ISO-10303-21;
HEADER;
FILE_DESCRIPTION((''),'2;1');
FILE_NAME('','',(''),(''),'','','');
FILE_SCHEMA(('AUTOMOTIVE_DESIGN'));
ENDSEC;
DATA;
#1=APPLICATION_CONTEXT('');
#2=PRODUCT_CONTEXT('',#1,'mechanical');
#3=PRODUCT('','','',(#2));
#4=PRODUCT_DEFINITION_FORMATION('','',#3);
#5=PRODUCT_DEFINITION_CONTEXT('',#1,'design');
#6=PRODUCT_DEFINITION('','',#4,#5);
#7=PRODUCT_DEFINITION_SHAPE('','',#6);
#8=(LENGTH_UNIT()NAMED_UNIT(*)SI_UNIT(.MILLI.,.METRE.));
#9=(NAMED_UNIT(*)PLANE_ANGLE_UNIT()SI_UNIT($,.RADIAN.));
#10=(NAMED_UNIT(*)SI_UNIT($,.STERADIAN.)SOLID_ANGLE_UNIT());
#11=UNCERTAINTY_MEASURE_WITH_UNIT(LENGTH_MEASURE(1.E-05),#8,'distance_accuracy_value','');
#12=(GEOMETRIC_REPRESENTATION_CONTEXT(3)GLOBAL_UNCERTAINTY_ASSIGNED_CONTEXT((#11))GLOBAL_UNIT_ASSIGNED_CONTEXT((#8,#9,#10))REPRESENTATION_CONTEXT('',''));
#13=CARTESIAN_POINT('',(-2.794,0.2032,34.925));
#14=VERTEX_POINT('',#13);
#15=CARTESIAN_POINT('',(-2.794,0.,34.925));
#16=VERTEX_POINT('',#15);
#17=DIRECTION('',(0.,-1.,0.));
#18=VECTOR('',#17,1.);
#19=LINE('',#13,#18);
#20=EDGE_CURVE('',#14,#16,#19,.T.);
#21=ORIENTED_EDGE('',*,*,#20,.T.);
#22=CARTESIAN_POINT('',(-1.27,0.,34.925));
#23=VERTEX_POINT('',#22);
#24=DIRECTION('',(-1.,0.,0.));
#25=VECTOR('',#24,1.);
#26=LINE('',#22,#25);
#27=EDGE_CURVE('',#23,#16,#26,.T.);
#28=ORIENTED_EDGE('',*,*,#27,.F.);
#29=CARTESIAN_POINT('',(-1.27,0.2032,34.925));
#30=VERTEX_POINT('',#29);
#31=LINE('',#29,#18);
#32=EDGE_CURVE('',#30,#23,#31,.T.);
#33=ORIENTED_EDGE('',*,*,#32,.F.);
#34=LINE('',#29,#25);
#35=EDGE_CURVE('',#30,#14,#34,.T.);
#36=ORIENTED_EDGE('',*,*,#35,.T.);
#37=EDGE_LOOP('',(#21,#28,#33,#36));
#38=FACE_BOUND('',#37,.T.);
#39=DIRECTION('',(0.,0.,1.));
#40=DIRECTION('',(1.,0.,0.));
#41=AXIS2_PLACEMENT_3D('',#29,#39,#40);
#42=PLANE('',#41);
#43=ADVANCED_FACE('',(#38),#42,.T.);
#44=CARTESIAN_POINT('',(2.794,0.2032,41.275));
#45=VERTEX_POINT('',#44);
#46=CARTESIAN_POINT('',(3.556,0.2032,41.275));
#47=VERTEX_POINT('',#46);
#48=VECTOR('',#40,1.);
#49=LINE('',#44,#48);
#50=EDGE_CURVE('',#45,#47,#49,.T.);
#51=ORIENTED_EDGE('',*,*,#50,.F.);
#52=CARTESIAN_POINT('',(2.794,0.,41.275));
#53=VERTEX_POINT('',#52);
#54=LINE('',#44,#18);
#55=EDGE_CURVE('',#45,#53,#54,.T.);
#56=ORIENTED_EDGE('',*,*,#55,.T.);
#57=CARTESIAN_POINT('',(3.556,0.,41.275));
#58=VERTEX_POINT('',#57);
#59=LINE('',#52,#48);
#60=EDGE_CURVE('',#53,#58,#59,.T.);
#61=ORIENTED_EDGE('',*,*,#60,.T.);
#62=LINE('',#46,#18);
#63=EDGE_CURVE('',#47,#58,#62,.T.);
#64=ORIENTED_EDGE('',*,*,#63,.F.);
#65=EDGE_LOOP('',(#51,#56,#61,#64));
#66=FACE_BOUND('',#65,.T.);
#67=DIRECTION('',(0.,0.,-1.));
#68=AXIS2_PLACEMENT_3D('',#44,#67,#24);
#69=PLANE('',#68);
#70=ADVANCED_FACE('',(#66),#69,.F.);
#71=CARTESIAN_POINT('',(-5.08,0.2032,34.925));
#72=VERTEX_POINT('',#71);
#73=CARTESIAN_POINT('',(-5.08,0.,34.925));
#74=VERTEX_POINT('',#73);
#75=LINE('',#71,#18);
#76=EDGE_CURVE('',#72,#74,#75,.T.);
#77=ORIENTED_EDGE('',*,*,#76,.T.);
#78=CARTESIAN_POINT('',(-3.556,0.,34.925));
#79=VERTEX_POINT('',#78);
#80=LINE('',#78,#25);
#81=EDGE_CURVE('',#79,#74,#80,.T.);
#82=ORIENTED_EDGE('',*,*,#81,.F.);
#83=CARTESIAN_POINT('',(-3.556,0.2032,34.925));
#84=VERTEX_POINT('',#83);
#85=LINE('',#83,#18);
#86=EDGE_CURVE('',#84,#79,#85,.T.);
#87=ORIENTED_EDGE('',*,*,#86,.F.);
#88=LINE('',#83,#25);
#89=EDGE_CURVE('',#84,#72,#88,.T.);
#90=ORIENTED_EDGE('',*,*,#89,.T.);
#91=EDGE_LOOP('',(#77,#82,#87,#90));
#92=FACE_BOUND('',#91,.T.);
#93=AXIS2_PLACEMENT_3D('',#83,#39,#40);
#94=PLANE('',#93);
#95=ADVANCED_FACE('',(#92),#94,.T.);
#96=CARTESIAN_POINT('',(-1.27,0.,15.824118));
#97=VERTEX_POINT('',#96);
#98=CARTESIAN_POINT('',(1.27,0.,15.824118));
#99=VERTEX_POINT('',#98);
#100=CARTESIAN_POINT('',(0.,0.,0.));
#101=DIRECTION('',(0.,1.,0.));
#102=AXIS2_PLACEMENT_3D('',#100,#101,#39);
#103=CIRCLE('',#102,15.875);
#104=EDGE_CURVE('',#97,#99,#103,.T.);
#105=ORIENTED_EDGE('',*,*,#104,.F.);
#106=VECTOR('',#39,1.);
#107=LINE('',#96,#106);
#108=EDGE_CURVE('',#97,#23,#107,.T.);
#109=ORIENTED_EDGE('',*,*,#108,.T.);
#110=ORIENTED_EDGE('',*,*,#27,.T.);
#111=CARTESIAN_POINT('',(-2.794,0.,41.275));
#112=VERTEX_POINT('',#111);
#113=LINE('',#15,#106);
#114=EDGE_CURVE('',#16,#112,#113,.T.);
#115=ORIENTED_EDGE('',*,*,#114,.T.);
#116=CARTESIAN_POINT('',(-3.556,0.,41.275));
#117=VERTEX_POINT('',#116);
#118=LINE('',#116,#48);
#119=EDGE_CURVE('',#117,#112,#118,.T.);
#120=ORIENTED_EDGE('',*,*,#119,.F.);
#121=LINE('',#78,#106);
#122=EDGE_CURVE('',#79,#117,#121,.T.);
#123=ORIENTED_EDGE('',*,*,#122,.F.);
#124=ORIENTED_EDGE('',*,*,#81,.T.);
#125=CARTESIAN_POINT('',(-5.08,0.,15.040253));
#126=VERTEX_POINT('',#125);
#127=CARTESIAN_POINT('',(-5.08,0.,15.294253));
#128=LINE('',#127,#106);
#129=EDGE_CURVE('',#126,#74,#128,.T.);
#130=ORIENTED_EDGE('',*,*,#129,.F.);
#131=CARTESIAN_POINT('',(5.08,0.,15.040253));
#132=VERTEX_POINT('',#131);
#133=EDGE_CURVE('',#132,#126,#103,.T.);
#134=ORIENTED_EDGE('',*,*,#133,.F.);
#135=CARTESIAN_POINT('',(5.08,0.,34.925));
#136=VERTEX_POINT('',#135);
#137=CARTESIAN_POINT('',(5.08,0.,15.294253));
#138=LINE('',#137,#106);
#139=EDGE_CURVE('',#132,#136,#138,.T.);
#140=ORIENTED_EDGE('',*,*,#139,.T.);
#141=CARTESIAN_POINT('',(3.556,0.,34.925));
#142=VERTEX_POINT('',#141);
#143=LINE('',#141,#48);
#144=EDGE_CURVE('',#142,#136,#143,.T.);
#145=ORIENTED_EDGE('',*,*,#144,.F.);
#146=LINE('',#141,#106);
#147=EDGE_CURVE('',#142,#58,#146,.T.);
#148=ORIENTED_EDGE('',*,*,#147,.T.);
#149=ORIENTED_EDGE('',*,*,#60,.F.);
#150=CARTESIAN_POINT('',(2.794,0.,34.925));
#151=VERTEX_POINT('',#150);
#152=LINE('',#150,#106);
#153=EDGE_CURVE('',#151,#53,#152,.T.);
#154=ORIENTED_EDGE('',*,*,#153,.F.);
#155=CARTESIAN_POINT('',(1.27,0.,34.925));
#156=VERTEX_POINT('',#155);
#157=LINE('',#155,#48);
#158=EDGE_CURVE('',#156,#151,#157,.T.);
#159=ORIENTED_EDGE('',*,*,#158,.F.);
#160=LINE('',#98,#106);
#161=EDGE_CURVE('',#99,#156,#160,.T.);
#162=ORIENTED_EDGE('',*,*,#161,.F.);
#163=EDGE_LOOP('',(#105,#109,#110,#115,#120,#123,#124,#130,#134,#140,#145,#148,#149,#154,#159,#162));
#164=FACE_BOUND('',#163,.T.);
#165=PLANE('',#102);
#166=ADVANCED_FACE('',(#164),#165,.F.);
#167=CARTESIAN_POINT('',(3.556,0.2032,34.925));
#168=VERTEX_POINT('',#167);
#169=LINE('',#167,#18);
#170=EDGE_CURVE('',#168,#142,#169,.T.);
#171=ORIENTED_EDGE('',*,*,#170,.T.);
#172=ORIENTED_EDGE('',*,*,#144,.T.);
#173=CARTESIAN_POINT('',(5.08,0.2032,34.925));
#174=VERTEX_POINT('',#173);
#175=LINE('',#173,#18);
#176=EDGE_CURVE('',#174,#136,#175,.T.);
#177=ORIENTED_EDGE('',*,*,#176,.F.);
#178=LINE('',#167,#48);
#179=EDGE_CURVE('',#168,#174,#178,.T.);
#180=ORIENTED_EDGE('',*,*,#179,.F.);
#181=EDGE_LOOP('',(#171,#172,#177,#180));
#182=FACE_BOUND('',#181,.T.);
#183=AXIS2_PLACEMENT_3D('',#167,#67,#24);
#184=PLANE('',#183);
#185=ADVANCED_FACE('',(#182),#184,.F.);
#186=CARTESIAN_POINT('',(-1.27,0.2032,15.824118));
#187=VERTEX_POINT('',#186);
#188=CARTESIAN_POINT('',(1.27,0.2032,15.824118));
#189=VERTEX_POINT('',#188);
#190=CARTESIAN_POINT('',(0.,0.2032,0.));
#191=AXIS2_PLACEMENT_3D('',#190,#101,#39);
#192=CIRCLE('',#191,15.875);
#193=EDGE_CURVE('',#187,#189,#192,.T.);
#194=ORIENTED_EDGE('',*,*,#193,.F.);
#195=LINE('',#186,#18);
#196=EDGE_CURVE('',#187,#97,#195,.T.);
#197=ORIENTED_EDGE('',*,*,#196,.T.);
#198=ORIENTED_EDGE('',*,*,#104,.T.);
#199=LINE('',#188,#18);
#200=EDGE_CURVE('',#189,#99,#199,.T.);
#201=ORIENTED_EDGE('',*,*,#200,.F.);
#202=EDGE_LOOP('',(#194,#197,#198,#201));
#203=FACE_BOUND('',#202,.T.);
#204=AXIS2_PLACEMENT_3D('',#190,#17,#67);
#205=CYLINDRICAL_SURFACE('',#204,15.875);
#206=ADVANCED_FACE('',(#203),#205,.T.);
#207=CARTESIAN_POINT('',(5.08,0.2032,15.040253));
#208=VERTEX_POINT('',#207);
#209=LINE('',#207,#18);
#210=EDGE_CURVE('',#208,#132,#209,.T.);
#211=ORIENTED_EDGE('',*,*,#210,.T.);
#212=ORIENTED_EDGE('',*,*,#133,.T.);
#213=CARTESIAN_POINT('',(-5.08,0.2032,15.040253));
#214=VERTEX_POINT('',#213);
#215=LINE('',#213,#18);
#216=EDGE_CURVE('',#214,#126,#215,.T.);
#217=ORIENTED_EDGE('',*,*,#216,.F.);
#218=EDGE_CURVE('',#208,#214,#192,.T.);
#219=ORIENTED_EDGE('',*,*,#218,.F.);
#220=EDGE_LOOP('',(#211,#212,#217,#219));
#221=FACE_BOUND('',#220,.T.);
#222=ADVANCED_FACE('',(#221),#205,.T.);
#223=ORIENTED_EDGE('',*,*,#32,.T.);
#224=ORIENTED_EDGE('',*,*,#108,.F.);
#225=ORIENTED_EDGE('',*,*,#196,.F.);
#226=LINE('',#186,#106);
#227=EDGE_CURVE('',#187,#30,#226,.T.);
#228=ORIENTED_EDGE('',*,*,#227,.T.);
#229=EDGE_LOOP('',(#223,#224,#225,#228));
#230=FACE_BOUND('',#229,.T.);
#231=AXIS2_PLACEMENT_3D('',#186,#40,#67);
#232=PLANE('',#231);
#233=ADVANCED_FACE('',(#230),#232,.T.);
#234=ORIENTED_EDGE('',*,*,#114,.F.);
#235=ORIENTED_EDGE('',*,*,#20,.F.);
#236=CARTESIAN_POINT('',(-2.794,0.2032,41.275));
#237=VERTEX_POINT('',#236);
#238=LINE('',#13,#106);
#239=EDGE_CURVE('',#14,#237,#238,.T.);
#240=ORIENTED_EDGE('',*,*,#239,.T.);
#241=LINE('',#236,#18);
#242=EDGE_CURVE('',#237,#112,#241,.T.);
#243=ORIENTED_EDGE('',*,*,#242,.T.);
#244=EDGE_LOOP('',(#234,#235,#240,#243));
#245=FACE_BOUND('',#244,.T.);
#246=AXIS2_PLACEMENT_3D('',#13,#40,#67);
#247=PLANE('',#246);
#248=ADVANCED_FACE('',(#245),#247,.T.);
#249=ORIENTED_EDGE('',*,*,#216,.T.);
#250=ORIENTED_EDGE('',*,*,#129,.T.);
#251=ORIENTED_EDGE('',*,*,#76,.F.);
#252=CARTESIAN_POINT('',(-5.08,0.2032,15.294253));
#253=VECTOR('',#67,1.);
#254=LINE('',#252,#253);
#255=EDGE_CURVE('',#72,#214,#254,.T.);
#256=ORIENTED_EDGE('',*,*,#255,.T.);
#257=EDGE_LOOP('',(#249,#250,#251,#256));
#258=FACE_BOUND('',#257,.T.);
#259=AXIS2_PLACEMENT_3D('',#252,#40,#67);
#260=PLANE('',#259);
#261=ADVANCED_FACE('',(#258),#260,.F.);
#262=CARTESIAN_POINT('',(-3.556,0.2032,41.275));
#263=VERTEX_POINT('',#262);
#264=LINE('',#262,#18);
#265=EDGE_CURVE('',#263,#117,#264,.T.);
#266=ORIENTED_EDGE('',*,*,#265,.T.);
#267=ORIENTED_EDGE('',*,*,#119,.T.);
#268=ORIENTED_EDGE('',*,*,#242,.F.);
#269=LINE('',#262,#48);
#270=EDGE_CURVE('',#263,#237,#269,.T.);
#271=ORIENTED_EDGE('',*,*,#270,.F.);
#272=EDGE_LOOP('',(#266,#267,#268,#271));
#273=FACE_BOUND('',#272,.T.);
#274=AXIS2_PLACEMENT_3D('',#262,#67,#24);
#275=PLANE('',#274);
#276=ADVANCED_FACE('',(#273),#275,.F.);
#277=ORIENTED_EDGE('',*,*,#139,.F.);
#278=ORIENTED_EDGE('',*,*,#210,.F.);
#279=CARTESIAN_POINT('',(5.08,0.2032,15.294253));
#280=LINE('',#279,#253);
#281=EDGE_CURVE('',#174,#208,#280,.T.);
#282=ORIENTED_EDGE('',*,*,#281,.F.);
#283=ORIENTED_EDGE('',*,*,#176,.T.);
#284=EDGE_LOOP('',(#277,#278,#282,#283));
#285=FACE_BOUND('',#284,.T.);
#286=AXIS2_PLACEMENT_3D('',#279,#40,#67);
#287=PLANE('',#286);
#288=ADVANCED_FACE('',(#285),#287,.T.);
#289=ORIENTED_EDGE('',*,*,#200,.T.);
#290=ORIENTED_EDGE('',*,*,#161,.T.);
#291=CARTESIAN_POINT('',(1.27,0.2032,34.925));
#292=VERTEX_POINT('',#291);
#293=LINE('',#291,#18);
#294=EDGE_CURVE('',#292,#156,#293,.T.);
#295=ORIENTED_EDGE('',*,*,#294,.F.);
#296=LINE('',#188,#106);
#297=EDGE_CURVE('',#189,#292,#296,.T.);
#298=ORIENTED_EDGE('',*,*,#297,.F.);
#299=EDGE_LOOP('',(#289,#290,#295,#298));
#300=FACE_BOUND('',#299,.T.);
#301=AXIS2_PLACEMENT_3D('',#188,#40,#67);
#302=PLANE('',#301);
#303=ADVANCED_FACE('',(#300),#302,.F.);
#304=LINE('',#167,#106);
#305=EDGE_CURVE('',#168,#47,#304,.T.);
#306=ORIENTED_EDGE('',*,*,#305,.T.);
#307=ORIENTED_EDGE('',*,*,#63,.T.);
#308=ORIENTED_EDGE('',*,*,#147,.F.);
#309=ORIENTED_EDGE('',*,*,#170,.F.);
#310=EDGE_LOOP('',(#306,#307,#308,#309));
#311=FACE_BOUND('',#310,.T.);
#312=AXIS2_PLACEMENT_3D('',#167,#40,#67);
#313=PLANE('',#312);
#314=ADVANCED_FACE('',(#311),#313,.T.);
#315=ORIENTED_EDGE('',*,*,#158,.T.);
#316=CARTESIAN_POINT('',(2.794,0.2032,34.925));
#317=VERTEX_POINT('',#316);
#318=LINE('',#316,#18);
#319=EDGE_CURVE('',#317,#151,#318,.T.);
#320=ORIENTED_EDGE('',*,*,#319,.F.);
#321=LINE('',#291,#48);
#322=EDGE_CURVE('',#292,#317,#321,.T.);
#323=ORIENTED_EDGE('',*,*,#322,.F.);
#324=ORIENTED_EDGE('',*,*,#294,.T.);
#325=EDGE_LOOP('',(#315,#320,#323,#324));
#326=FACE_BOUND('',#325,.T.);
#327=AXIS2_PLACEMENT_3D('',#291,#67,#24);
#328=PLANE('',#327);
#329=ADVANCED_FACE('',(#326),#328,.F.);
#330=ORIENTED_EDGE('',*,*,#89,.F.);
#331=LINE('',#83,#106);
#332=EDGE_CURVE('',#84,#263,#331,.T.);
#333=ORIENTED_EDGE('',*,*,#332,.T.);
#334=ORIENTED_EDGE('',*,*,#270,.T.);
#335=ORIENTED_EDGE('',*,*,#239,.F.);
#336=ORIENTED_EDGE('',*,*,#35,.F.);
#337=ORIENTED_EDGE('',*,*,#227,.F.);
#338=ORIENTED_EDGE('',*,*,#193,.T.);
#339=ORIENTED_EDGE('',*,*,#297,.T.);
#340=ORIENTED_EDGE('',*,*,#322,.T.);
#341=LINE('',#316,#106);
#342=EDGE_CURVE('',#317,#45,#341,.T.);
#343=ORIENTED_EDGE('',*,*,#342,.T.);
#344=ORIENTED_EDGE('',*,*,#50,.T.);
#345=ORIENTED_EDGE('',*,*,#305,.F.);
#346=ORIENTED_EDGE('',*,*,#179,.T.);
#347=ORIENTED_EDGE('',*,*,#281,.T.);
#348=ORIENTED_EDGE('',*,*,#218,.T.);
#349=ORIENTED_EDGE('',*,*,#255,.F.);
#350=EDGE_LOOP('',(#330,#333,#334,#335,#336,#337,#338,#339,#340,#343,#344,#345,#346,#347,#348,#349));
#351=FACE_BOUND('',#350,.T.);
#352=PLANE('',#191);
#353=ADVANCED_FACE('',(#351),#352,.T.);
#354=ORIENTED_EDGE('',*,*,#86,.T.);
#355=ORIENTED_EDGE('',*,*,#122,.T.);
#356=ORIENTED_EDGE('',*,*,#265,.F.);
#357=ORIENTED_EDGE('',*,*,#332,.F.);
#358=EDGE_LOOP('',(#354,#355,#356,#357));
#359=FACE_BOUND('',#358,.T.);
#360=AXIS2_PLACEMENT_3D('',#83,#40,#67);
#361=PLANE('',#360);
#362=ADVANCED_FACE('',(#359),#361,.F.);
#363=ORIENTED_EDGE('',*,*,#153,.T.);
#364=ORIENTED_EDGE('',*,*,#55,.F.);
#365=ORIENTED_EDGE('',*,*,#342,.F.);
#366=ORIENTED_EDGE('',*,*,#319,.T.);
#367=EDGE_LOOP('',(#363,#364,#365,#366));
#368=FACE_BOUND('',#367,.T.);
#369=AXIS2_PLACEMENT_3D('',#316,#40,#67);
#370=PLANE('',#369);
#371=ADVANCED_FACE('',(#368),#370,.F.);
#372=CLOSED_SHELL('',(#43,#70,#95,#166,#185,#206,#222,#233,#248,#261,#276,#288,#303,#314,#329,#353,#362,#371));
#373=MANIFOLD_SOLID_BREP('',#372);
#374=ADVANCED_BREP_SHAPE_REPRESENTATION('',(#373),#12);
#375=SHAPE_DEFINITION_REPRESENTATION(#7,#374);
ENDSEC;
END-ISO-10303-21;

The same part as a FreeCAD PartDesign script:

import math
import FreeCAD as App
import Part
import Sketcher

V = App.Vector
Q = App.Units.Quantity

doc = App.newDocument("Part")
body = doc.addObject("PartDesign::Body", "Body")

sketch1 = body.newObject("Sketcher::SketchObject", "Sketch")
sketch1.AttachmentSupport = (doc.getObject("XZ_Plane"), [""])
sketch1.MapMode = "FlatFace"
sketch1.addGeometry([
    Part.LineSegment(V(-1.27, 34.925, 0), V(-1.27, 15.824118, 0)),
    Part.ArcOfCircle(Part.Circle(V(0, 0, 0), V(0, 0, 1), 15.875), math.radians(85.411434), math.radians(94.588566)),
    Part.LineSegment(V(1.27, 15.824118, 0), V(1.27, 34.925, 0)),
    Part.LineSegment(V(1.27, 34.925, 0), V(2.794, 34.925, 0)),
    Part.LineSegment(V(2.794, 34.925, 0), V(2.794, 41.275, 0)),
    Part.LineSegment(V(2.794, 41.275, 0), V(3.556, 41.275, 0)),
    Part.LineSegment(V(3.556, 41.275, 0), V(3.556, 34.925, 0)),
    Part.LineSegment(V(3.556, 34.925, 0), V(5.08, 34.925, 0)),
    Part.LineSegment(V(5.08, 34.925, 0), V(5.08, 15.040253, 0)),
    Part.ArcOfCircle(Part.Circle(V(0, 0, 0), V(0, 0, 1), 15.875), math.radians(108.662925), math.radians(431.337075)),
    Part.LineSegment(V(-5.08, 15.040253, 0), V(-5.08, 34.925, 0)),
    Part.LineSegment(V(-5.08, 34.925, 0), V(-3.556, 34.925, 0)),
    Part.LineSegment(V(-3.556, 34.925, 0), V(-3.556, 41.275, 0)),
    Part.LineSegment(V(-3.556, 41.275, 0), V(-2.794, 41.275, 0)),
    Part.LineSegment(V(-2.794, 41.275, 0), V(-2.794, 34.925, 0)),
    Part.LineSegment(V(-2.794, 34.925, 0), V(-1.27, 34.925, 0)),
], False)
sketch1.addConstraint([
    Sketcher.Constraint("Coincident", 0, 2, 1, 2),
    Sketcher.Constraint("Coincident", 1, 1, 2, 1),
    Sketcher.Constraint("Coincident", 2, 2, 3, 1),
    Sketcher.Constraint("Coincident", 3, 2, 4, 1),
    Sketcher.Constraint("Coincident", 4, 2, 5, 1),
    Sketcher.Constraint("Coincident", 5, 2, 6, 1),
    Sketcher.Constraint("Coincident", 6, 2, 7, 1),
    Sketcher.Constraint("Coincident", 7, 2, 8, 1),
    Sketcher.Constraint("Coincident", 8, 2, 9, 2),
    Sketcher.Constraint("Coincident", 9, 1, 10, 1),
    Sketcher.Constraint("Coincident", 10, 2, 11, 1),
    Sketcher.Constraint("Coincident", 11, 2, 12, 1),
    Sketcher.Constraint("Coincident", 12, 2, 13, 1),
    Sketcher.Constraint("Coincident", 13, 2, 14, 1),
    Sketcher.Constraint("Coincident", 14, 2, 15, 1),
    Sketcher.Constraint("Coincident", 15, 2, 0, 1),
    Sketcher.Constraint("Vertical", 0),
    Sketcher.Constraint("Vertical", 2),
    Sketcher.Constraint("Horizontal", 3),
    Sketcher.Constraint("Vertical", 4),
    Sketcher.Constraint("Horizontal", 5),
    Sketcher.Constraint("Vertical", 6),
    Sketcher.Constraint("Horizontal", 7),
    Sketcher.Constraint("Vertical", 8),
    Sketcher.Constraint("Vertical", 10),
    Sketcher.Constraint("Horizontal", 11),
    Sketcher.Constraint("Vertical", 12),
    Sketcher.Constraint("Horizontal", 13),
    Sketcher.Constraint("Vertical", 14),
    Sketcher.Constraint("Horizontal", 15),
    Sketcher.Constraint("Coincident", 1, 3, -1, 1),
    Sketcher.Constraint("Coincident", 9, 3, -1, 1),
    Sketcher.Constraint("Equal", 1, 9),
    Sketcher.Constraint("Symmetric", 7, 2, 10, 2, -2),
    Sketcher.Constraint("Symmetric", 5, 2, 12, 2, -2),
    Sketcher.Constraint("Symmetric", 3, 2, 14, 2, -2),
    Sketcher.Constraint("Horizontal", 0, 2, 1, 1),
    Sketcher.Constraint("Horizontal", 3, 2, 6, 2),
    Sketcher.Constraint("Equal", 3, 7),
    Sketcher.Constraint("Radius", 1, Q("0.625 in")),
    Sketcher.Constraint("DistanceX", 3, 1, 3, 2, Q("0.06 in")),
    Sketcher.Constraint("DistanceX", 5, 1, 5, 2, Q("0.03 in")),
    Sketcher.Constraint("DistanceY", 4, 1, 4, 2, Q("0.25 in")),
    Sketcher.Constraint("DistanceX", -1, 1, 7, 2, Q("0.2 in")),
    Sketcher.Constraint("DistanceY", -1, 1, 2, 2, Q("1.375 in")),
])
pad1 = body.newObject("PartDesign::Pad", "Pad")
pad1.Profile = sketch1
pad1.Length = Q("0.008 in")
pad1.Reversed = True

doc.recompute()
